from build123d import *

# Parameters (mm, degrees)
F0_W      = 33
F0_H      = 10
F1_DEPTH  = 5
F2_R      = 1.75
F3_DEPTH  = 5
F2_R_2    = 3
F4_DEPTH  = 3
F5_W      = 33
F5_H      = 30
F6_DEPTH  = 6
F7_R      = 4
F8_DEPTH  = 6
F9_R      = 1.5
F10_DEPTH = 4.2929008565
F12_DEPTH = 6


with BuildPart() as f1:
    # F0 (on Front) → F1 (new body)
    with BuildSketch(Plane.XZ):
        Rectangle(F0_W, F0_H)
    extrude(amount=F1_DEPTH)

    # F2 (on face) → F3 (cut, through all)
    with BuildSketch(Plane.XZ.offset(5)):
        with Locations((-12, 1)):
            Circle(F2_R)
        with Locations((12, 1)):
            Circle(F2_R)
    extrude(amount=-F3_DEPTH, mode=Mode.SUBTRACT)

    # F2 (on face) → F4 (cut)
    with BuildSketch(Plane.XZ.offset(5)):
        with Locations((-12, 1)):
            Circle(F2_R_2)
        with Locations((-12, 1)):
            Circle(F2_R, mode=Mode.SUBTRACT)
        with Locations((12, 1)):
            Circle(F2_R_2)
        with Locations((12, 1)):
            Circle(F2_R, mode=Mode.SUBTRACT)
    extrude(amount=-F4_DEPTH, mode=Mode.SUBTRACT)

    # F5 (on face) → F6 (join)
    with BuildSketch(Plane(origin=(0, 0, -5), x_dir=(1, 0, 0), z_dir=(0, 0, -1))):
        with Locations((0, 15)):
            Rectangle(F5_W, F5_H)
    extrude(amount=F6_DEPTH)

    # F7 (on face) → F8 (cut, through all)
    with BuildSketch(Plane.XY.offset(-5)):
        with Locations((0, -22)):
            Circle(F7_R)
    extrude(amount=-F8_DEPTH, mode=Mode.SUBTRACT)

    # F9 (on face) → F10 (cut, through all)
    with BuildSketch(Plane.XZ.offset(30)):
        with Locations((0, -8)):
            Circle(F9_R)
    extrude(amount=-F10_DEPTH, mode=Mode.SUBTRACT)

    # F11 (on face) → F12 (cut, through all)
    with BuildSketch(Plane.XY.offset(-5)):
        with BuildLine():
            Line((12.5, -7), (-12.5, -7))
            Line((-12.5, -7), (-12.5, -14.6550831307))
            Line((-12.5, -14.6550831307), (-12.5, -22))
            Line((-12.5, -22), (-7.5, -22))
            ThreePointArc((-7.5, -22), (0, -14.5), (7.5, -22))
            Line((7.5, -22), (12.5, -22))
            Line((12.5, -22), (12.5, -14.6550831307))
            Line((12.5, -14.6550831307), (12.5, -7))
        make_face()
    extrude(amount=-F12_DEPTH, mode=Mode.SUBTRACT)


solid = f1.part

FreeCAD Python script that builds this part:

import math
import FreeCAD as App
import Part
import Sketcher
from FreeCAD import Vector
Q = App.Units.Quantity

doc = App.newDocument("Part")
body = doc.addObject("PartDesign::Body", "Body")

# Sketch on XZ plane
sketch1 = doc.addObject("Sketcher::SketchObject", "Sketch")
body.addObject(sketch1)
sketch1.AttachmentSupport = (doc.XZ_Plane, [""])
sketch1.MapMode = "FlatFace"
sketch1.addGeometry([
    Part.LineSegment(Vector(-16, 5, 0), Vector(-16, -5, 0)),
    Part.LineSegment(Vector(-16, -5, 0), Vector(16, -5, 0)),
    Part.LineSegment(Vector(16, -5, 0), Vector(16, 5, 0)),
    Part.LineSegment(Vector(16, 5, 0), Vector(-16, 5, 0)),
], False)
sketch1.addConstraint([
    Sketcher.Constraint("Coincident", 0, 2, 1, 1),
    Sketcher.Constraint("Coincident", 1, 2, 2, 1),
    Sketcher.Constraint("Coincident", 2, 2, 3, 1),
    Sketcher.Constraint("Coincident", 3, 2, 0, 1),
    Sketcher.Constraint("Vertical", 0),
    Sketcher.Constraint("Horizontal", 1),
    Sketcher.Constraint("Vertical", 2),
    Sketcher.Constraint("Horizontal", 3),
    Sketcher.Constraint("Symmetric", 0, 2, 2, 2, -1, 1),
    Sketcher.Constraint("DistanceX", 1, 1, 1, 2, Q("33 mm")),
    Sketcher.Constraint("DistanceY", 0, 2, 0, 1, Q("10 mm")),
])
pad1 = doc.addObject("PartDesign::Pad", "Pad")
body.addObject(pad1)
pad1.Profile = sketch1
pad1.Length = 5

# Sketch on XZ plane
sketch2 = doc.addObject("Sketcher::SketchObject", "Sketch001")
body.addObject(sketch2)
sketch2.AttachmentSupport = (doc.XZ_Plane, [""])
sketch2.MapMode = "FlatFace"
sketch2.AttachmentOffset = App.Placement(Vector(0, 0, 5), App.Rotation())
sketch2.addGeometry([
    Part.Circle(Vector(-12, 1, 0), Vector(0, 0, 1), 1.8),
    Part.Circle(Vector(12, 1, 0), Vector(0, 0, 1), 1.8),
], False)
sketch2.addConstraint([
    Sketcher.Constraint("Equal", 0, 1),
    Sketcher.Constraint("Symmetric", 0, 3, 1, 3, -2),
    Sketcher.Constraint("Diameter", 0, Q("3.5 mm")),
    Sketcher.Constraint("DistanceX", 0, 3, -1, 1, Q("12 mm")),
    Sketcher.Constraint("DistanceY", -1, 1, 0, 3, Q("1 mm")),
])
pocket1 = doc.addObject("PartDesign::Pocket", "Pocket")
body.addObject(pocket1)
pocket1.Profile = sketch2
pocket1.Type = "ThroughAll"

# Sketch on XZ plane
sketch3 = doc.addObject("Sketcher::SketchObject", "Sketch002")
body.addObject(sketch3)
sketch3.AttachmentSupport = (doc.XZ_Plane, [""])
sketch3.MapMode = "FlatFace"
sketch3.AttachmentOffset = App.Placement(Vector(0, 0, 5), App.Rotation())
sketch3.addGeometry([
    Part.Circle(Vector(-12, 1, 0), Vector(0, 0, 1), 3),
    Part.Circle(Vector(-12, 1, 0), Vector(0, 0, 1), 1.8),
    Part.Circle(Vector(12, 1, 0), Vector(0, 0, 1), 3),
    Part.Circle(Vector(12, 1, 0), Vector(0, 0, 1), 1.8),
], False)
sketch3.addConstraint([
    Sketcher.Constraint("Coincident", 1, 3, 0, 3),
    Sketcher.Constraint("Coincident", 3, 3, 2, 3),
    Sketcher.Constraint("Equal", 0, 2),
    Sketcher.Constraint("Equal", 1, 3),
    Sketcher.Constraint("Symmetric", 0, 3, 2, 3, -2),
    Sketcher.Constraint("Diameter", 0, Q("6 mm")),
    Sketcher.Constraint("Diameter", 1, Q("3.5 mm")),
    Sketcher.Constraint("DistanceX", 0, 3, -1, 1, Q("12 mm")),
    Sketcher.Constraint("DistanceY", -1, 1, 0, 3, Q("1 mm")),
])
pocket2 = doc.addObject("PartDesign::Pocket", "Pocket001")
body.addObject(pocket2)
pocket2.Profile = sketch3
pocket2.Length = 3

# Sketch on XY plane
sketch4 = doc.addObject("Sketcher::SketchObject", "Sketch003")
body.addObject(sketch4)
sketch4.AttachmentSupport = (doc.XY_Plane, [""])
sketch4.MapMode = "FlatFace"
sketch4.AttachmentOffset = App.Placement(Vector(0, 0, -5), App.Rotation())
sketch4.addGeometry([
    Part.LineSegment(Vector(-16, -30, 0), Vector(-16, 0, 0)),
    Part.LineSegment(Vector(-16, 0, 0), Vector(16, 0, 0)),
    Part.LineSegment(Vector(16, 0, 0), Vector(16, -30, 0)),
    Part.LineSegment(Vector(16, -30, 0), Vector(-16, -30, 0)),
], False)
sketch4.addConstraint([
    Sketcher.Constraint("Coincident", 0, 2, 1, 1),
    Sketcher.Constraint("Coincident", 1, 2, 2, 1),
    Sketcher.Constraint("Coincident", 2, 2, 3, 1),
    Sketcher.Constraint("Coincident", 3, 2, 0, 1),
    Sketcher.Constraint("Vertical", 0),
    Sketcher.Constraint("Horizontal", 1),
    Sketcher.Constraint("Vertical", 2),
    Sketcher.Constraint("Horizontal", 3),
    Sketcher.Constraint("Symmetric", 0, 2, 1, 2, -1, 1),
    Sketcher.Constraint("DistanceX", 1, 1, 1, 2, Q("33 mm")),
    Sketcher.Constraint("DistanceY", 0, 1, 0, 2, Q("30 mm")),
])
pad2 = doc.addObject("PartDesign::Pad", "Pad001")
body.addObject(pad2)
pad2.Profile = sketch4
pad2.Length = 6
pad2.Reversed = True

# Sketch on XY plane
sketch5 = doc.addObject("Sketcher::SketchObject", "Sketch004")
body.addObject(sketch5)
sketch5.AttachmentSupport = (doc.XY_Plane, [""])
sketch5.MapMode = "FlatFace"
sketch5.AttachmentOffset = App.Placement(Vector(0, 0, -5), App.Rotation())
sketch5.addGeometry(Part.Circle(Vector(0, -22, 0), Vector(0, 0, 1), 4), False)
sketch5.addConstraint([
    Sketcher.Constraint("PointOnObject", 0, 3, -2),
    Sketcher.Constraint("Diameter", 0, Q("8 mm")),
    Sketcher.Constraint("DistanceY", 0, 3, -1, 1, Q("22 mm")),
])
pocket3 = doc.addObject("PartDesign::Pocket", "Pocket002")
body.addObject(pocket3)
pocket3.Profile = sketch5
pocket3.Type = "ThroughAll"

# Sketch on XZ plane
sketch6 = doc.addObject("Sketcher::SketchObject", "Sketch005")
body.addObject(sketch6)
sketch6.AttachmentSupport = (doc.XZ_Plane, [""])
sketch6.MapMode = "FlatFace"
sketch6.AttachmentOffset = App.Placement(Vector(0, 0, 30), App.Rotation())
sketch6.addGeometry(Part.Circle(Vector(0, -8, 0), Vector(0, 0, 1), 1.5), False)
sketch6.addConstraint([
    Sketcher.Constraint("PointOnObject", 0, 3, -2),
    Sketcher.Constraint("Diameter", 0, Q("3 mm")),
    Sketcher.Constraint("DistanceY", 0, 3, -1, 1, Q("8 mm")),
])
pocket4 = doc.addObject("PartDesign::Pocket", "Pocket003")
body.addObject(pocket4)
pocket4.Profile = sketch6
pocket4.Length = 4.292901

# Sketch on XY plane
sketch7 = doc.addObject("Sketcher::SketchObject", "Sketch006")
body.addObject(sketch7)
sketch7.AttachmentSupport = (doc.XY_Plane, [""])
sketch7.MapMode = "FlatFace"
sketch7.AttachmentOffset = App.Placement(Vector(0, 0, -5), App.Rotation())
sketch7.addGeometry([
    Part.LineSegment(Vector(12, -7, 0), Vector(-12, -7, 0)),  # 0
    Part.LineSegment(Vector(-12, -7, 0), Vector(-12, -22, 0)),  # 1
    Part.LineSegment(Vector(-12, -22, 0), Vector(-8, -22, 0)),  # 2
    Part.ArcOfCircle(Part.Circle(Vector(0, -22, 0), Vector(0, 0, 1), 8), math.radians(0), math.radians(180)),  # 3
    Part.LineSegment(Vector(8, -22, 0), Vector(12, -22, 0)),  # 4
    Part.LineSegment(Vector(12, -22, 0), Vector(12, -7, 0)),  # 5
], False)
sketch7.addConstraint([
    Sketcher.Constraint("Coincident", 0, 2, 1, 1),
    Sketcher.Constraint("Coincident", 1, 2, 2, 1),
    Sketcher.Constraint("Coincident", 2, 2, 3, 2),
    Sketcher.Constraint("Coincident", 3, 1, 4, 1),
    Sketcher.Constraint("Coincident", 4, 2, 5, 1),
    Sketcher.Constraint("Coincident", 5, 2, 0, 1),
    Sketcher.Constraint("Horizontal", 0),
    Sketcher.Constraint("Vertical", 1),
    Sketcher.Constraint("Horizontal", 2),
    Sketcher.Constraint("Horizontal", 4),
    Sketcher.Constraint("Vertical", 5),
    Sketcher.Constraint("Symmetric", 2, 2, 3, 1, -2),
    Sketcher.Constraint("Horizontal", 3, 3, 1, 2),
    Sketcher.Constraint("Equal", 2, 4),
    Sketcher.Constraint("Radius", 3, Q("7.5 mm")),
    Sketcher.Constraint("DistanceX", 0, 2, 0, 1, Q("25 mm")),
    Sketcher.Constraint("DistanceY", 1, 2, 1, 1, Q("15 mm")),
    Sketcher.Constraint("DistanceY", 3, 3, -1, 1, Q("22 mm")),
])
pocket5 = doc.addObject("PartDesign::Pocket", "Pocket004")
body.addObject(pocket5)
pocket5.Profile = sketch7
pocket5.Type = "ThroughAll"

doc.recompute()
